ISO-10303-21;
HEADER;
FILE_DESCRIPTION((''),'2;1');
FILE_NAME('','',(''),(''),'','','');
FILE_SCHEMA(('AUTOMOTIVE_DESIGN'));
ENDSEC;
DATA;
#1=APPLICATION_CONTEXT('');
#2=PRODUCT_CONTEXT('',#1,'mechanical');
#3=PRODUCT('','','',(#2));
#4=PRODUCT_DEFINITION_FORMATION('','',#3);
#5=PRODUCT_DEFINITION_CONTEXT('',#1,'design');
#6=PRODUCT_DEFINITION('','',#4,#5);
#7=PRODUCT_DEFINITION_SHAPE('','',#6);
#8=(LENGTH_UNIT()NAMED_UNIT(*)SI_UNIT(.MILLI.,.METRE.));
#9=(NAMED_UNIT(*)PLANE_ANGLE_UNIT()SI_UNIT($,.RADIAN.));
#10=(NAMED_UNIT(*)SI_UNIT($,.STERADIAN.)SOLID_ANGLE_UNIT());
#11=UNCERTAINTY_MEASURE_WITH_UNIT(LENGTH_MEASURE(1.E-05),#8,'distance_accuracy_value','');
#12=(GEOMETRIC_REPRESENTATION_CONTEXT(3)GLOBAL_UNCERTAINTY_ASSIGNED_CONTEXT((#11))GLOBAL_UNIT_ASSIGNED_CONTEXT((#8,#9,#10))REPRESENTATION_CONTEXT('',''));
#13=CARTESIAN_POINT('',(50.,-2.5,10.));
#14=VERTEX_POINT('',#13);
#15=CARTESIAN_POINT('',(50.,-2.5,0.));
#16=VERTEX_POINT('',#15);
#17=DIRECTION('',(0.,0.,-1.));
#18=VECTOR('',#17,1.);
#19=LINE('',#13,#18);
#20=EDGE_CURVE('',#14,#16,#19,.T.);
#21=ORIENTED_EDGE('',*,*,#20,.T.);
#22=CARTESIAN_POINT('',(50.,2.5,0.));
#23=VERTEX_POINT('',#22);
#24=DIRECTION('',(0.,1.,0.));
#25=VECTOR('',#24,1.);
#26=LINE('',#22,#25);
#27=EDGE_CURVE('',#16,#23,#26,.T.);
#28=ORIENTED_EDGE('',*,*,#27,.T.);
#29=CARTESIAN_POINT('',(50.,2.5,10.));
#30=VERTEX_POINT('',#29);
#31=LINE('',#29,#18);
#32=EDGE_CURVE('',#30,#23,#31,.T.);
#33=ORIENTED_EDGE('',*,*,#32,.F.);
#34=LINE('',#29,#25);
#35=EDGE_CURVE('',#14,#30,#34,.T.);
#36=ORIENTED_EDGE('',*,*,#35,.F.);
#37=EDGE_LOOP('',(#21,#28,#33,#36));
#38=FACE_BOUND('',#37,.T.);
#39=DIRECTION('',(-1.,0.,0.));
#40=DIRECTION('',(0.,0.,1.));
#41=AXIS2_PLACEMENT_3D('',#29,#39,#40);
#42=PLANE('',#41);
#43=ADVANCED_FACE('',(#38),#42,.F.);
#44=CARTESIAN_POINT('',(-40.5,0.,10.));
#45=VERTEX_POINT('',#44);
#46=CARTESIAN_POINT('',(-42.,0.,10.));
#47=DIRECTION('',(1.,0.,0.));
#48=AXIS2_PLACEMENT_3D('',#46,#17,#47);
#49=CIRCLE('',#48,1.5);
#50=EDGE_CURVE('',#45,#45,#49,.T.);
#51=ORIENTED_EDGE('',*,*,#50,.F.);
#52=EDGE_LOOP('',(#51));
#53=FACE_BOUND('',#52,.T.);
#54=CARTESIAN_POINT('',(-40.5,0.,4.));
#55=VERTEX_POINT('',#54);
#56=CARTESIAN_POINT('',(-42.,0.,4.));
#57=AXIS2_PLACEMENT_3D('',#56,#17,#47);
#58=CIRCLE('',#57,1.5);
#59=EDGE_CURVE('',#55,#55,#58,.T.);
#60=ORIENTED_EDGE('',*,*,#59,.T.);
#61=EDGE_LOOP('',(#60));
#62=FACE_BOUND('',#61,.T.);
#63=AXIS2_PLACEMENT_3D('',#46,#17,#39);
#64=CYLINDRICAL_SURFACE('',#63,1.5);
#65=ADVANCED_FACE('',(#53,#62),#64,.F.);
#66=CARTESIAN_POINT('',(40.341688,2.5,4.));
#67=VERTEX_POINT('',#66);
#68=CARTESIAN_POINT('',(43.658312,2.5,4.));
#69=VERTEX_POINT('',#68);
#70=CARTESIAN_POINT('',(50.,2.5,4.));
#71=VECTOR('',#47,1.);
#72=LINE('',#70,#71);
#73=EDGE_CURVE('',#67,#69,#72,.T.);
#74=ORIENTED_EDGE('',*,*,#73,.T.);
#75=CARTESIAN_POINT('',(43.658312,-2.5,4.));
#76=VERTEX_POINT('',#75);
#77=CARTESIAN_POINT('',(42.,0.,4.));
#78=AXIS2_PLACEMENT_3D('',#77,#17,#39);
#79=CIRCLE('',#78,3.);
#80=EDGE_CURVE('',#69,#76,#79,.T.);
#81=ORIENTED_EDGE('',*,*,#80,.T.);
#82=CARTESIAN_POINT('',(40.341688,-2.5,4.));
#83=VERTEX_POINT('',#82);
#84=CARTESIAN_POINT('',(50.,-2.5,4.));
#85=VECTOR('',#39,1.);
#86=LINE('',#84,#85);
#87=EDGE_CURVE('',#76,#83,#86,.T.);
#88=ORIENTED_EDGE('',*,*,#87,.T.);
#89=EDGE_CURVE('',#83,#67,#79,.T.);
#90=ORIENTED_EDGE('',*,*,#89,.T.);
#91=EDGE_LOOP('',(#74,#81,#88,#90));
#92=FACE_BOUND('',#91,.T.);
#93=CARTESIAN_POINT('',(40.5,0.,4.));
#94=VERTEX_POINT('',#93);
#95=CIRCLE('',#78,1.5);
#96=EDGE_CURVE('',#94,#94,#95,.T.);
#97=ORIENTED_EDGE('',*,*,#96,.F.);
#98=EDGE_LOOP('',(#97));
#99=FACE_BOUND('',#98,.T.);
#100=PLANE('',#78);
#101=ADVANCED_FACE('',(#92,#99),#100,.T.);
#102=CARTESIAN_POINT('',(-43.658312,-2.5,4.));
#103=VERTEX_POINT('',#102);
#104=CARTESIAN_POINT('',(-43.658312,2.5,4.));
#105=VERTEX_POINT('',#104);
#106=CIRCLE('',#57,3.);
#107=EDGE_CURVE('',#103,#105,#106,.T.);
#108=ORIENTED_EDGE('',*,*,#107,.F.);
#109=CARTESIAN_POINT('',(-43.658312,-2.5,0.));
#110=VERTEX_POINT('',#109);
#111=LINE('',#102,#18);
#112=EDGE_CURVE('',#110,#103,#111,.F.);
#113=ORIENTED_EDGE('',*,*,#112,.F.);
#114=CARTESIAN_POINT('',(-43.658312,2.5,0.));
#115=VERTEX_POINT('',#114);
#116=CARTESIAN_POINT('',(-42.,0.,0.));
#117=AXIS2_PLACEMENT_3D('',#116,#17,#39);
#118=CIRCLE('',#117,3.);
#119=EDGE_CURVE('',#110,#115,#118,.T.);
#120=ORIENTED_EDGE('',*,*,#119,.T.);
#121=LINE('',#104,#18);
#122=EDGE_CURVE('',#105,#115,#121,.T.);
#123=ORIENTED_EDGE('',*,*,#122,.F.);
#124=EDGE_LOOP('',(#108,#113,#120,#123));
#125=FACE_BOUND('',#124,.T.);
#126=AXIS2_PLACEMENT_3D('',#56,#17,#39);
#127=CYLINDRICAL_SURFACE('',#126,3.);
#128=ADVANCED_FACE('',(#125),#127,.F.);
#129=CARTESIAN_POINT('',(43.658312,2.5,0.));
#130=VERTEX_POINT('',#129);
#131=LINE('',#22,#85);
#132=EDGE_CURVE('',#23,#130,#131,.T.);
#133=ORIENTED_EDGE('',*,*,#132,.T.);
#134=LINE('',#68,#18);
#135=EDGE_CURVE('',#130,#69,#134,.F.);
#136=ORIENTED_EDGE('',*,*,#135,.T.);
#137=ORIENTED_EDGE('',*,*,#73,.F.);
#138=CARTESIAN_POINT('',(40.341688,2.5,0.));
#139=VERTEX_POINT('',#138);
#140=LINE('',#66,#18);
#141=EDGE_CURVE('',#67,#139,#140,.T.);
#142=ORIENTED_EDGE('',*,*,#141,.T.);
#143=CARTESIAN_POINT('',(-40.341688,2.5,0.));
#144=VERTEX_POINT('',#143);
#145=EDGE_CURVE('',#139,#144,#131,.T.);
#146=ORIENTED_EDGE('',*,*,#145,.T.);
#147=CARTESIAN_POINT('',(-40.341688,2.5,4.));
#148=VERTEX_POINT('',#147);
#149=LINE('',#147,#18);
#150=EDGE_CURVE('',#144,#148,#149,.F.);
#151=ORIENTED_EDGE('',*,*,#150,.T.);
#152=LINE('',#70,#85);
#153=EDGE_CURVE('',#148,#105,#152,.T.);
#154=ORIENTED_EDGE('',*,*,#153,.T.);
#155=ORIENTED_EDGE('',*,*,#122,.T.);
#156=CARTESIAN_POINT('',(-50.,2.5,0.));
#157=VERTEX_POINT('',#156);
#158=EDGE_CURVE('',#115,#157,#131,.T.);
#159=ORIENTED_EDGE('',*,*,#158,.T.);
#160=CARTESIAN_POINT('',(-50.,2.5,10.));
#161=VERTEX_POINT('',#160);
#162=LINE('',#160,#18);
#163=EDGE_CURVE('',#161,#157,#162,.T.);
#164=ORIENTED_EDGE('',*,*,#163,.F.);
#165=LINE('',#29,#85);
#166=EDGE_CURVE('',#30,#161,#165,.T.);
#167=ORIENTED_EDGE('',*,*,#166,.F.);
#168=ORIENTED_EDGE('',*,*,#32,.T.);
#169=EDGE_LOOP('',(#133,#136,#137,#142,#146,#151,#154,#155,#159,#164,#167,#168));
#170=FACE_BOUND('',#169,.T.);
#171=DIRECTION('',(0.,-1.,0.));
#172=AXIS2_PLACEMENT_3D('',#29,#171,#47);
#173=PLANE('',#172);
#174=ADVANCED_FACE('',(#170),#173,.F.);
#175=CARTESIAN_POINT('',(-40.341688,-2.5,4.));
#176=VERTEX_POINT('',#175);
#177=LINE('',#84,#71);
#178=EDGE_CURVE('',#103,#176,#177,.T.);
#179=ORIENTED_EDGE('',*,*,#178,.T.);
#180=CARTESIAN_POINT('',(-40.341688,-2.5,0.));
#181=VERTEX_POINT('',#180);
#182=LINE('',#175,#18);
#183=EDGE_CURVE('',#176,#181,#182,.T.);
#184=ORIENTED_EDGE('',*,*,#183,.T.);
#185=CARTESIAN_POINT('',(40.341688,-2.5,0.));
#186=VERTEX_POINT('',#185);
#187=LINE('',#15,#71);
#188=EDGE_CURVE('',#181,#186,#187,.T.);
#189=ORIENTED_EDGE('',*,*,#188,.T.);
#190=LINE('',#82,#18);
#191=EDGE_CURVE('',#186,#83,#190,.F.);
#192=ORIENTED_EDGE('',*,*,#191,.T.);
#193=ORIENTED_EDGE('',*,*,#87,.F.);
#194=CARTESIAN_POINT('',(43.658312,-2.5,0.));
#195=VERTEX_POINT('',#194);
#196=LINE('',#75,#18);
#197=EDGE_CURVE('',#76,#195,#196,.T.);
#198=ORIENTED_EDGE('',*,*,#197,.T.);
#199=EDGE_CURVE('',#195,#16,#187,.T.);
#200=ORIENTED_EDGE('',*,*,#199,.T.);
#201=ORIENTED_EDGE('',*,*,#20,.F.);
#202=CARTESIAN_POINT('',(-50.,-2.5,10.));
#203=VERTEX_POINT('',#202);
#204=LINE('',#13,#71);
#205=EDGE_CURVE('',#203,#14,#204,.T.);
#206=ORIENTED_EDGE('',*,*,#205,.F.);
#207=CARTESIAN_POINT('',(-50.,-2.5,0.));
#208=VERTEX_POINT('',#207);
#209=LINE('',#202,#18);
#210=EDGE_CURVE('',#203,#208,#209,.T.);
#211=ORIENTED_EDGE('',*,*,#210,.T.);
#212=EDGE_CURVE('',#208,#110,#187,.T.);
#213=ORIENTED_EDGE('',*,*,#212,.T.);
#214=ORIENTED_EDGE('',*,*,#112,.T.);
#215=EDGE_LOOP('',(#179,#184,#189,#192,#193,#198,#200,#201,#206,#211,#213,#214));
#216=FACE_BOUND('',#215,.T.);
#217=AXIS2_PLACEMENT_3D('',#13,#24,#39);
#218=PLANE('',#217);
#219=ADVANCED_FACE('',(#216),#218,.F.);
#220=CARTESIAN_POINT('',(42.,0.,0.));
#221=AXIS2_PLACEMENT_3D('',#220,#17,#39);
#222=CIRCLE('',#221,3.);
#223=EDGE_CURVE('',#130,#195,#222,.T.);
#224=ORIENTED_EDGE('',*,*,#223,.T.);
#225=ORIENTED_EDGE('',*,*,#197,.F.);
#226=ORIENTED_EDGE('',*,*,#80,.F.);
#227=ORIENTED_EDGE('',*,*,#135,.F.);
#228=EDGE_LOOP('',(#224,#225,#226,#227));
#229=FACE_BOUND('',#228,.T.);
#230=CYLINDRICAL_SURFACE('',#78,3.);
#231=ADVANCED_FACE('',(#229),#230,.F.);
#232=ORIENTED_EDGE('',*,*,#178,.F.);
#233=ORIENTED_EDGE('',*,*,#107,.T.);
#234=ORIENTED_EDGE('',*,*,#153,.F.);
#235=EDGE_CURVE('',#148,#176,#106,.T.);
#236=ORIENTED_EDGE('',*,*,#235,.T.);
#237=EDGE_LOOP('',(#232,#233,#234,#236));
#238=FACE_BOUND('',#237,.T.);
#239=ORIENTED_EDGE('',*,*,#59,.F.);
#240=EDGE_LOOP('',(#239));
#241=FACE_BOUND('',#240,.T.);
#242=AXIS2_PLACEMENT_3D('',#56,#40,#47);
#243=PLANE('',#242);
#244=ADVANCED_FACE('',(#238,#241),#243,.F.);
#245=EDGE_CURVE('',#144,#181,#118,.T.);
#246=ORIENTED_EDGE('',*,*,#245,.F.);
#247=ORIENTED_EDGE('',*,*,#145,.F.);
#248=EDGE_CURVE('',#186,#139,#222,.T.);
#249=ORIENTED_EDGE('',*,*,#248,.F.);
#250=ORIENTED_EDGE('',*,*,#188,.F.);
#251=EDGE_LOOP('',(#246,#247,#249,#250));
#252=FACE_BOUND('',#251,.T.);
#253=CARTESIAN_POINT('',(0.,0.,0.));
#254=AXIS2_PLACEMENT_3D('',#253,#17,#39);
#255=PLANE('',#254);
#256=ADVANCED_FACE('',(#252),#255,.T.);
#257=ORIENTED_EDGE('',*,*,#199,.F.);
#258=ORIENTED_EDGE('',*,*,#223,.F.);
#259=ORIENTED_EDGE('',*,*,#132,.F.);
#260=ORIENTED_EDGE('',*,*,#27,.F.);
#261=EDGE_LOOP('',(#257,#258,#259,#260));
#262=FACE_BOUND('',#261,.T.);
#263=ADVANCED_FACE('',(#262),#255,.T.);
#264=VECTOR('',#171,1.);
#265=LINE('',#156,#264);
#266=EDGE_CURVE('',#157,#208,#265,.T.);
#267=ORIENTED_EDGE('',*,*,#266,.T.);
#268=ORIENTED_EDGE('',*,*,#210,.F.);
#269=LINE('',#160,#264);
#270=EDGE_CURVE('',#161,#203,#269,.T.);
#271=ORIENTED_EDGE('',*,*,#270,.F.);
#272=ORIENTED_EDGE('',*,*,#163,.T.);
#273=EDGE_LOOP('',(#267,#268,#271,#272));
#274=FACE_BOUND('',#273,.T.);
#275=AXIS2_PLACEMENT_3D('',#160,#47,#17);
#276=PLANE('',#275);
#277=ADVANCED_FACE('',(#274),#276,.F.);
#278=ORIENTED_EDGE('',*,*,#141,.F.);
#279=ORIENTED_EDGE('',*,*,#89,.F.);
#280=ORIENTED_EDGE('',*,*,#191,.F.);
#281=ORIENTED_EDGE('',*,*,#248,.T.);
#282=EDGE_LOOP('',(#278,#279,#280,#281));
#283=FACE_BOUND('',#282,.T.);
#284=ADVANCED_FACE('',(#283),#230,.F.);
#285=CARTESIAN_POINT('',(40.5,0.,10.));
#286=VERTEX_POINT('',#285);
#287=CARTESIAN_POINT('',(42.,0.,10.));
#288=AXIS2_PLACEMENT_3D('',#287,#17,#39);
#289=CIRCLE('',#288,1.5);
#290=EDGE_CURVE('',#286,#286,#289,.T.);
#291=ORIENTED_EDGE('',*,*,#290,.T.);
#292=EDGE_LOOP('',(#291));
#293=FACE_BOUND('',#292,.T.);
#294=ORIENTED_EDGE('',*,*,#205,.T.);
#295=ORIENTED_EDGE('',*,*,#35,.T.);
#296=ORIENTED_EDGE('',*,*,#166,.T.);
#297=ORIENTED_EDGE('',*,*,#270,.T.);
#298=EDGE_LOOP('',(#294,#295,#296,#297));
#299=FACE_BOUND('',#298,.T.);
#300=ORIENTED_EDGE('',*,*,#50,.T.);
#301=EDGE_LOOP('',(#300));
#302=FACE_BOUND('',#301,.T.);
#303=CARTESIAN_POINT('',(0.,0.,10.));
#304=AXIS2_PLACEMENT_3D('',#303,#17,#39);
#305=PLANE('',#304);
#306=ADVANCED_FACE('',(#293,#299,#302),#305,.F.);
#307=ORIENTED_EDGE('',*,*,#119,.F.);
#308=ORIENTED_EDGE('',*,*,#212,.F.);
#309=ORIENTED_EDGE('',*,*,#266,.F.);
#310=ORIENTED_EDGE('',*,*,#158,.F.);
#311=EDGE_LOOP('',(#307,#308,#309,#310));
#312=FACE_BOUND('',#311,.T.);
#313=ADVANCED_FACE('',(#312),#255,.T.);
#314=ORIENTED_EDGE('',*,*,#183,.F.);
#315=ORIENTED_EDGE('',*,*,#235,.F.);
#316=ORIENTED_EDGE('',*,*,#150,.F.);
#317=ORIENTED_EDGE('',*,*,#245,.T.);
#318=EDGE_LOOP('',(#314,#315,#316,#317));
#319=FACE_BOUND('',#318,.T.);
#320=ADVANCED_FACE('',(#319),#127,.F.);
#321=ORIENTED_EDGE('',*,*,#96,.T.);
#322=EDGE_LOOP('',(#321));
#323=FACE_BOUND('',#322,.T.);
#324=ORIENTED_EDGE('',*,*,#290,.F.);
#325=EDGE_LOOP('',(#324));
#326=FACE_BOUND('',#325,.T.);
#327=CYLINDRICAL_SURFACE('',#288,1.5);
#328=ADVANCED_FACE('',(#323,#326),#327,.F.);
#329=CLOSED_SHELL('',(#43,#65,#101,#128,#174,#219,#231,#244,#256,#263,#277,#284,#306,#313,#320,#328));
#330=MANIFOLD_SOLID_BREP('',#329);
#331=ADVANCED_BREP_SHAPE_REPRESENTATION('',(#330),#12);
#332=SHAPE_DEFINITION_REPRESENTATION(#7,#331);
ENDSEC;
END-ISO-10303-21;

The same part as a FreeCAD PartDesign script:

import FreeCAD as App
import Part
import Sketcher
Q = App.Units.Quantity


def add_polygon(sketch, points):
    """Adds a closed chain of lines whose ends are joined by coincident constraints."""
    first, n = sketch.GeometryCount, len(points)
    for a, b in zip(points, points[1:] + points[:1]):
        sketch.addGeometry(Part.LineSegment(App.Vector(*a, 0), App.Vector(*b, 0)), False)
    for i in range(n):
        sketch.addConstraint(Sketcher.Constraint("Coincident", first + i, 2, first + (i + 1) % n, 1))

doc = App.newDocument("Part")
body = doc.addObject("PartDesign::Body", "Body")

sketch1 = doc.addObject("Sketcher::SketchObject", "Sketch")
body.addObject(sketch1)
sketch1.AttachmentSupport = (doc.XY_Plane, [""])
sketch1.MapMode = "FlatFace"
add_polygon(sketch1, [(-50, 2), (-50, -2), (50, -2), (50, 2)])
sketch1.addConstraint([
    Sketcher.Constraint("Vertical", 0),
    Sketcher.Constraint("Horizontal", 1),
    Sketcher.Constraint("Vertical", 2),
    Sketcher.Constraint("Horizontal", 3),
    Sketcher.Constraint("Symmetric", 0, 2, 2, 2, -1, 1),
    Sketcher.Constraint("DistanceX", 1, 1, 1, 2, Q("100 mm")),
    Sketcher.Constraint("DistanceY", 0, 2, 0, 1, Q("5 mm")),
])
pad1 = doc.addObject("PartDesign::Pad", "Pad")
body.addObject(pad1)
pad1.Profile = sketch1
pad1.Length = 10

sketch2 = doc.addObject("Sketcher::SketchObject", "Sketch001")
body.addObject(sketch2)
sketch2.AttachmentSupport = (doc.XY_Plane, [""])
sketch2.MapMode = "FlatFace"
sketch2.addGeometry([
    Part.Circle(App.Vector(42, 0, 0), App.Vector(0, 0, 1), 3),
    Part.Circle(App.Vector(-42, 0, 0), App.Vector(0, 0, 1), 3),
], False)
sketch2.addConstraint([
    Sketcher.Constraint("Equal", 0, 1),
    Sketcher.Constraint("Symmetric", 0, 3, 1, 3, -1, 1),
    Sketcher.Constraint("PointOnObject", 0, 3, -1),
    Sketcher.Constraint("Diameter", 0, Q("6 mm")),
    Sketcher.Constraint("DistanceX", -1, 1, 0, 3, Q("42 mm")),
])
pocket1 = doc.addObject("PartDesign::Pocket", "Pocket")
body.addObject(pocket1)
pocket1.Profile = sketch2
pocket1.Length = 4
pocket1.Reversed = True

sketch3 = doc.addObject("Sketcher::SketchObject", "Sketch002")
body.addObject(sketch3)
sketch3.AttachmentSupport = (doc.XY_Plane, [""])
sketch3.MapMode = "FlatFace"
sketch3.AttachmentOffset = App.Placement(App.Vector(0, 0, 4), App.Rotation())
sketch3.addGeometry([
    Part.Circle(App.Vector(42, 0, 0), App.Vector(0, 0, 1), 1.5),
    Part.Circle(App.Vector(-42, 0, 0), App.Vector(0, 0, 1), 1.5),
], False)
sketch3.addConstraint([
    Sketcher.Constraint("Equal", 0, 1),
    Sketcher.Constraint("Symmetric", 0, 3, 1, 3, -1, 1),
    Sketcher.Constraint("PointOnObject", 0, 3, -1),
    Sketcher.Constraint("Diameter", 0, Q("3 mm")),
    Sketcher.Constraint("DistanceX", -1, 1, 0, 3, Q("42 mm")),
])
pocket2 = doc.addObject("PartDesign::Pocket", "Pocket001")
body.addObject(pocket2)
pocket2.Profile = sketch3
pocket2.Type = "ThroughAll"
pocket2.Reversed = True

doc.recompute()
